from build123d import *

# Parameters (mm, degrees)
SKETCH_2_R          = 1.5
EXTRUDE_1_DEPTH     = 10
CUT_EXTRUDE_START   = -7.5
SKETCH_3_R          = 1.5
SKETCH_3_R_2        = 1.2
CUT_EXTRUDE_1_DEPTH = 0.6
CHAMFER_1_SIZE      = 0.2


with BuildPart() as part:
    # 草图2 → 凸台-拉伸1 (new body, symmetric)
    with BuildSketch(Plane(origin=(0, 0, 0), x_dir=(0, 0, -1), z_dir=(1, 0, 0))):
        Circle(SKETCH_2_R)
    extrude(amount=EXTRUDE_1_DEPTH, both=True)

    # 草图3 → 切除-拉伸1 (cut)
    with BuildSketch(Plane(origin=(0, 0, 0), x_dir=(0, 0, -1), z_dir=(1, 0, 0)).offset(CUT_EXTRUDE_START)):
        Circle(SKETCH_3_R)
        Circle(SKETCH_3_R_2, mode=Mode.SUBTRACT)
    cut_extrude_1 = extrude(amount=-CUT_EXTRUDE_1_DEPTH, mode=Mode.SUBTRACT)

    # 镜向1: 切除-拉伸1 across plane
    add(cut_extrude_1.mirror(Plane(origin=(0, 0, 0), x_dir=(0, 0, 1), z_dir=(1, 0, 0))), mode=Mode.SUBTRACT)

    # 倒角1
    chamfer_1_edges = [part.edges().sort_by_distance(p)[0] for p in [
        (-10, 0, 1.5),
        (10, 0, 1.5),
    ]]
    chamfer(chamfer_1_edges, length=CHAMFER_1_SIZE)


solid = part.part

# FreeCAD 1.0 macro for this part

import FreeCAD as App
import Part
import Sketcher
from FreeCAD import Vector
Q = App.Units.Quantity


def edges_at(feature, points):
    """Names of the edges that pass closest to the given points."""
    edges = feature.Shape.Edges
    near = lambda p: min(range(len(edges)), key=lambda i: edges[i].distToShape(Part.Vertex(*p))[0])
    return sorted({f"Edge{near(p) + 1}" for p in points})

doc = App.newDocument("Part")
body = doc.addObject("PartDesign::Body", "Body")

sketch1 = doc.addObject("Sketcher::SketchObject", "Sketch")
body.addObject(sketch1)
sketch1.AttachmentSupport = (doc.YZ_Plane, [""])
sketch1.MapMode = "FlatFace"
sketch1.addGeometry(Part.Circle(Vector(0, 0, 0), Vector(0, 0, 1), 1.5), False)
sketch1.addConstraint([
    Sketcher.Constraint("Coincident", 0, 3, -1, 1),
    Sketcher.Constraint("Diameter", 0, Q("3 mm")),
])
pad1 = doc.addObject("PartDesign::Pad", "Pad")
body.addObject(pad1)
pad1.Profile = sketch1
pad1.Length = 20
pad1.Midplane = True

sketch2 = doc.addObject("Sketcher::SketchObject", "Sketch001")
body.addObject(sketch2)
sketch2.AttachmentSupport = (doc.YZ_Plane, [""])
sketch2.MapMode = "FlatFace"
sketch2.AttachmentOffset = App.Placement(Vector(0, 0, -7.5), App.Rotation())
sketch2.addGeometry([
    Part.Circle(Vector(0, 0, 0), Vector(0, 0, 1), 1.5),
    Part.Circle(Vector(0, 0, 0), Vector(0, 0, 1), 1.2),
], False)
sketch2.addConstraint([
    Sketcher.Constraint("Coincident", 0, 3, -1, 1),
    Sketcher.Constraint("Coincident", 1, 3, -1, 1),
    Sketcher.Constraint("Diameter", 0, Q("3 mm")),
    Sketcher.Constraint("Diameter", 1, Q("2.4 mm")),
])
pocket1 = doc.addObject("PartDesign::Pocket", "Pocket")
body.addObject(pocket1)
pocket1.Profile = sketch2
pocket1.Length = 0.6
doc.recompute()

mirrored = doc.addObject("PartDesign::Mirrored", "Mirrored")
body.addObject(mirrored)
mirrored.Originals = [pocket1]
mirrored.MirrorPlane = (doc.YZ_Plane, [""])
body.Tip = mirrored
doc.recompute()

chamfer = doc.addObject("PartDesign::Chamfer", "Chamfer")
body.addObject(chamfer)
chamfer.Base = (mirrored, edges_at(mirrored, [(-10, 0, 1.5), (10, 0, 1.5)]))
chamfer.Size = 0.2

doc.recompute()
